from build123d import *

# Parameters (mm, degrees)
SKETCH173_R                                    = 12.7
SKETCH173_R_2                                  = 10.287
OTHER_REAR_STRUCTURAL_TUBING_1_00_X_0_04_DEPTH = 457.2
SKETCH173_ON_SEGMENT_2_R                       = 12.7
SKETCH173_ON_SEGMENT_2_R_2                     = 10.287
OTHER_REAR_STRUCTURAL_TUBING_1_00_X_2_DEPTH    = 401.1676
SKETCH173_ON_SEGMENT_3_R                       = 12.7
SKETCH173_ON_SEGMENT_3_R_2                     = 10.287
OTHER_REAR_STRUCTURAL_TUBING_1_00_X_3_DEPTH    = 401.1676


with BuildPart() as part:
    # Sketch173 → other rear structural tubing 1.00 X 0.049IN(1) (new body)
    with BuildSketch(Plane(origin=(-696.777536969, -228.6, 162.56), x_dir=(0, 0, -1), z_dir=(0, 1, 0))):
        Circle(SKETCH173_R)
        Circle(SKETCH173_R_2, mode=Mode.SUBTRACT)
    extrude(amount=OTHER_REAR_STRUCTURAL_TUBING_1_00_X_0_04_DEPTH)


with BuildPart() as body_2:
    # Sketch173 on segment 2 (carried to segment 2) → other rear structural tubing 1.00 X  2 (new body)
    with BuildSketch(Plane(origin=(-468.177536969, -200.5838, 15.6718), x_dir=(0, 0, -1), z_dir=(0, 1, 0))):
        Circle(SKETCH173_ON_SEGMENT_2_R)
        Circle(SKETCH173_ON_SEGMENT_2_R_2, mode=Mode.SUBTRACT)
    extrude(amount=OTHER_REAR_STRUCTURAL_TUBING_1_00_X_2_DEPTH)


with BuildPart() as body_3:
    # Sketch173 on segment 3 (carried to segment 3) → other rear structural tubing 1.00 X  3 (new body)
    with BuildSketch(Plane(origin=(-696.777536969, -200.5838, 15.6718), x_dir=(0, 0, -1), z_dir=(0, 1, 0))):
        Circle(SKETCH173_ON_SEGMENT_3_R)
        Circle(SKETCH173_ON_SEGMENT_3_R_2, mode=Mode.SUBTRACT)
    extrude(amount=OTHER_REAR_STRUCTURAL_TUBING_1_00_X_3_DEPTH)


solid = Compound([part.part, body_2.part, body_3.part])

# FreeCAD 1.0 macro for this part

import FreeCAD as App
import Part
import Sketcher

V = App.Vector
Q = App.Units.Quantity

doc = App.newDocument("Part")
params = doc.addObject("Spreadsheet::Sheet", "Params")
for row, (alias, value) in enumerate([
    ("sketch1_diameter", "1 in"),
    ("sketch1_diameter2", "0.81 in"),
    ("pad1_length", "18 in"),
    ("sketch2_diameter", "1 in"),
    ("sketch2_diameter2", "0.81 in"),
    ("pad2_length", "15.794 in"),
    ("sketch3_diameter", "1 in"),
    ("sketch3_diameter2", "0.81 in"),
    ("pad3_length", "15.794 in"),
], start=1):
    params.set(f"A{row}", alias)
    params.set(f"B{row}", "=" + value)
    params.setAlias(f"B{row}", alias)

body = doc.addObject("PartDesign::Body", "Body")

sketch1 = doc.addObject("Sketcher::SketchObject", "Sketch")
body.addObject(sketch1)
sketch1.AttachmentSupport = (doc.XZ_Plane, [""])
sketch1.MapMode = "FlatFace"
sketch1.AttachmentOffset = App.Placement(V(0, 0, 9 * 25.4), App.Rotation())
sketch1.addGeometry(Part.Circle(V(-697, 163, 0), V(0, 0, 1), 13), False)
sketch1.addGeometry(Part.Circle(V(-697, 163, 0), V(0, 0, 1), 10), False)
sketch1.addConstraint(Sketcher.Constraint("Coincident", 1, 3, 0, 3))
sketch1.addConstraint(Sketcher.Constraint("Diameter", 0, Q("1 in")))
sketch1.addConstraint(Sketcher.Constraint("Diameter", 1, Q("0.81 in")))
sketch1.addConstraint(Sketcher.Constraint("DistanceY", -1, 1, 0, 3, Q("6.4 in")))
sketch1.addConstraint(Sketcher.Constraint("DistanceX", 0, 3, -1, 1, 696.777537))
sketch1.setExpression("Constraints[1]", "Params.sketch1_diameter")
sketch1.setExpression("Constraints[2]", "Params.sketch1_diameter2")
pad1 = doc.addObject("PartDesign::Pad", "Pad")
body.addObject(pad1)
pad1.Profile = sketch1
pad1.setExpression("Length", "Params.pad1_length")
pad1.Reversed = True
body2 = doc.addObject("PartDesign::Body", "Body001")

sketch2 = doc.addObject("Sketcher::SketchObject", "Sketch001")
body2.addObject(sketch2)
sketch2.AttachmentSupport = (doc.getObject("XZ_Plane001"), [""])
sketch2.MapMode = "FlatFace"
sketch2.AttachmentOffset = App.Placement(V(0, 0, 7.897 * 25.4), App.Rotation())
sketch2.addGeometry(Part.Circle(V(-468, 16, 0), V(0, 0, 1), 13), False)
sketch2.addGeometry(Part.Circle(V(-468, 16, 0), V(0, 0, 1), 10), False)
sketch2.addConstraint(Sketcher.Constraint("Coincident", 1, 3, 0, 3))
sketch2.addConstraint(Sketcher.Constraint("Diameter", 0, Q("1 in")))
sketch2.addConstraint(Sketcher.Constraint("Diameter", 1, Q("0.81 in")))
sketch2.addConstraint(Sketcher.Constraint("DistanceY", -1, 1, 0, 3, Q("0.617 in")))
sketch2.addConstraint(Sketcher.Constraint("DistanceX", 0, 3, -1, 1, 468.177537))
sketch2.setExpression("Constraints[1]", "Params.sketch2_diameter")
sketch2.setExpression("Constraints[2]", "Params.sketch2_diameter2")
pad2 = doc.addObject("PartDesign::Pad", "Pad001")
body2.addObject(pad2)
pad2.Profile = sketch2
pad2.setExpression("Length", "Params.pad2_length")
pad2.Reversed = True
body3 = doc.addObject("PartDesign::Body", "Body002")

sketch3 = doc.addObject("Sketcher::SketchObject", "Sketch002")
body3.addObject(sketch3)
sketch3.AttachmentSupport = (doc.getObject("XZ_Plane002"), [""])
sketch3.MapMode = "FlatFace"
sketch3.AttachmentOffset = App.Placement(V(0, 0, 7.897 * 25.4), App.Rotation())
sketch3.addGeometry(Part.Circle(V(-697, 16, 0), V(0, 0, 1), 13), False)
sketch3.addGeometry(Part.Circle(V(-697, 16, 0), V(0, 0, 1), 10), False)
sketch3.addConstraint(Sketcher.Constraint("Coincident", 1, 3, 0, 3))
sketch3.addConstraint(Sketcher.Constraint("Diameter", 0, Q("1 in")))
sketch3.addConstraint(Sketcher.Constraint("Diameter", 1, Q("0.81 in")))
sketch3.addConstraint(Sketcher.Constraint("DistanceY", -1, 1, 0, 3, Q("0.617 in")))
sketch3.addConstraint(Sketcher.Constraint("DistanceX", 0, 3, -1, 1, 696.777537))
sketch3.setExpression("Constraints[1]", "Params.sketch3_diameter")
sketch3.setExpression("Constraints[2]", "Params.sketch3_diameter2")
pad3 = doc.addObject("PartDesign::Pad", "Pad002")
body3.addObject(pad3)
pad3.Profile = sketch3
pad3.setExpression("Length", "Params.pad3_length")
pad3.Reversed = True

doc.recompute()
